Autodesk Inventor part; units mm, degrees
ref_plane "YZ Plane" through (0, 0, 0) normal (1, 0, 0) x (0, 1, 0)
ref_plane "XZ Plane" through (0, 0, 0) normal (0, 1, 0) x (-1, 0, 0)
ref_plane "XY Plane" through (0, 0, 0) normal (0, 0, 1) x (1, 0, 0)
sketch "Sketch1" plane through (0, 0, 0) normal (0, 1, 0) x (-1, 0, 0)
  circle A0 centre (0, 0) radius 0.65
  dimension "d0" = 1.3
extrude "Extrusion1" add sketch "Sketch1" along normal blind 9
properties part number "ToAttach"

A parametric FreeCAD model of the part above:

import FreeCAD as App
import Part
import Sketcher

doc = App.newDocument("Part")
body = doc.addObject("PartDesign::Body", "Body")

# Sketch on XZ plane
sketch1 = body.newObject("Sketcher::SketchObject", "Sketch")
sketch1.AttachmentSupport = (doc.getObject("XZ_Plane"), [""])
sketch1.MapMode = "FlatFace"
sketch1.addGeometry(Part.Circle(App.Vector(0, 0, 0), App.Vector(0, 0, 1), 0.7), False)
sketch1.addConstraint([
    Sketcher.Constraint("Coincident", 0, 3, -1, 1),
    Sketcher.Constraint("Diameter", 0, 1.3),
])
pad1 = body.newObject("PartDesign::Pad", "Pad")
pad1.Profile = sketch1
pad1.Length = 9
pad1.Reversed = True

doc.recompute()
